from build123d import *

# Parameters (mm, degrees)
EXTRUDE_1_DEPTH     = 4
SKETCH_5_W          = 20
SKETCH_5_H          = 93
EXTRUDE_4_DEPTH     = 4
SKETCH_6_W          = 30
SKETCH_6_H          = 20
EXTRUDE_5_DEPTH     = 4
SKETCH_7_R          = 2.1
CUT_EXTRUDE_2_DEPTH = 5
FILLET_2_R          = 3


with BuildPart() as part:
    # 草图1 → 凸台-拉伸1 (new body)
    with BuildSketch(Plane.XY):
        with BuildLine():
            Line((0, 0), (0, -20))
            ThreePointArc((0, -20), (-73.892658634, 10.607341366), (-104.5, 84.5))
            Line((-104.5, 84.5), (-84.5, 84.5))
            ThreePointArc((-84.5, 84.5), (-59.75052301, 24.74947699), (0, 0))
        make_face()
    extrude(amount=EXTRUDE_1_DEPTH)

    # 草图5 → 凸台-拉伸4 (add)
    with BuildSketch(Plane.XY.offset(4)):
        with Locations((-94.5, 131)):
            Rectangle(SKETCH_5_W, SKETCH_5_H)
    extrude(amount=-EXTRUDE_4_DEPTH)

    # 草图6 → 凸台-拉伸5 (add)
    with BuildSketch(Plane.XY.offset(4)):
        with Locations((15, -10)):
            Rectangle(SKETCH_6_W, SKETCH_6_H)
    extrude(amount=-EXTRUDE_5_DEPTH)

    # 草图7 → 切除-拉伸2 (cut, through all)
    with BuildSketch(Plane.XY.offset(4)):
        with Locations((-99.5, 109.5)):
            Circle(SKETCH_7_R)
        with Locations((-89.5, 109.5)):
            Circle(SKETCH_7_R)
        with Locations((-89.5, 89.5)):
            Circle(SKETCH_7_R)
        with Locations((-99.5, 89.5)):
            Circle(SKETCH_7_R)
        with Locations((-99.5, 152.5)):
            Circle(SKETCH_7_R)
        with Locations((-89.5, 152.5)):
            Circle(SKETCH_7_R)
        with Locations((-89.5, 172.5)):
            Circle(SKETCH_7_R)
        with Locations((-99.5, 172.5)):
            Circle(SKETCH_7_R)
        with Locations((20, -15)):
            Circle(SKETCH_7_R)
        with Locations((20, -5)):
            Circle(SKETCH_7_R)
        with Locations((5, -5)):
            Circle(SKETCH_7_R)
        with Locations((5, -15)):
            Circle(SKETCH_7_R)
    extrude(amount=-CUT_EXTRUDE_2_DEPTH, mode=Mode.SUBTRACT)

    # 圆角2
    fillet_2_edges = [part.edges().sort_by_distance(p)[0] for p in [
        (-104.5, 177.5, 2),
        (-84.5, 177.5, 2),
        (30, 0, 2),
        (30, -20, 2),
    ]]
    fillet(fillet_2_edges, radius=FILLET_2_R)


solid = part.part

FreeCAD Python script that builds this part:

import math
import FreeCAD as App
import Part
import Sketcher

V = App.Vector
Q = App.Units.Quantity


def edges_at(feature, points):
    """Names of the edges that pass closest to the given points."""
    edges = feature.Shape.Edges
    near = lambda p: min(range(len(edges)), key=lambda i: edges[i].distToShape(Part.Vertex(*p))[0])
    return sorted({f"Edge{near(p) + 1}" for p in points})

doc = App.newDocument("Part")
params = doc.addObject("Spreadsheet::Sheet", "Params")
for row, (alias, value) in enumerate([
    ("sketch1_radius", "84.5 mm"),
    ("sketch1_radius2", "104.5 mm"),
    ("pad1_length", "4 mm"),
    ("sketch2_width", "20 mm"),
    ("sketch2_height", "93 mm"),
    ("pad2_length", "4 mm"),
    ("sketch3_width", "30 mm"),
    ("sketch3_height", "20 mm"),
    ("pad3_length", "4 mm"),
    ("sketch4_diameter", "4.2 mm"),
    ("fillet_radius", "3 mm"),
], start=1):
    params.set(f"A{row}", alias)
    params.set(f"B{row}", "=" + value)
    params.setAlias(f"B{row}", alias)

body = doc.addObject("PartDesign::Body", "Body")

# Sketch on XY plane
sketch1 = doc.addObject("Sketcher::SketchObject", "Sketch")
body.addObject(sketch1)
sketch1.AttachmentSupport = (doc.XY_Plane, [""])
sketch1.MapMode = "FlatFace"
sketch1.addGeometry(Part.LineSegment(V(0, -20, 0), V(0, 0, 0)), False)
sketch1.addGeometry(Part.ArcOfCircle(Part.Circle(V(0, 84.5, 0), V(0, 0, 1), 84.5), math.radians(-180), math.radians(-90)), False)
sketch1.addGeometry(Part.LineSegment(V(-84.5, 84.5, 0), V(-104.5, 84.5, 0)), False)
sketch1.addGeometry(Part.ArcOfCircle(Part.Circle(V(0, 84.5, 0), V(0, 0, 1), 104.5), math.radians(180), math.radians(270)), False)
sketch1.addConstraint(Sketcher.Constraint("Coincident", 0, 2, 1, 2))
sketch1.addConstraint(Sketcher.Constraint("Coincident", 1, 1, 2, 1))
sketch1.addConstraint(Sketcher.Constraint("Coincident", 2, 2, 3, 1))
sketch1.addConstraint(Sketcher.Constraint("Coincident", 3, 2, 0, 1))
sketch1.addConstraint(Sketcher.Constraint("Vertical", 0))
sketch1.addConstraint(Sketcher.Constraint("Horizontal", 2))
sketch1.addConstraint(Sketcher.Constraint("Coincident", 0, 2, -1, 1))
sketch1.addConstraint(Sketcher.Constraint("Coincident", 3, 3, 1, 3))
sketch1.addConstraint(Sketcher.Constraint("PointOnObject", 1, 3, -2))
sketch1.addConstraint(Sketcher.Constraint("Horizontal", 3, 3, 1, 1))
sketch1.addConstraint(Sketcher.Constraint("Radius", 1, Q("84.5 mm")))
sketch1.addConstraint(Sketcher.Constraint("Radius", 3, Q("104.5 mm")))
sketch1.setExpression("Constraints[10]", "Params.sketch1_radius")
sketch1.setExpression("Constraints[11]", "Params.sketch1_radius2")
pad1 = doc.addObject("PartDesign::Pad", "Pad")
body.addObject(pad1)
pad1.Profile = sketch1
pad1.setExpression("Length", "Params.pad1_length")

# Sketch on XY plane
sketch2 = doc.addObject("Sketcher::SketchObject", "Sketch001")
body.addObject(sketch2)
sketch2.AttachmentSupport = (doc.XY_Plane, [""])
sketch2.MapMode = "FlatFace"
sketch2.AttachmentOffset = App.Placement(V(0, 0, 4), App.Rotation())
sketch2.addGeometry(Part.LineSegment(V(-104.5, 177.5, 0), V(-104.5, 84.5, 0)), False)
sketch2.addGeometry(Part.LineSegment(V(-104.5, 84.5, 0), V(-84.5, 84.5, 0)), False)
sketch2.addGeometry(Part.LineSegment(V(-84.5, 84.5, 0), V(-84.5, 177.5, 0)), False)
sketch2.addGeometry(Part.LineSegment(V(-84.5, 177.5, 0), V(-104.5, 177.5, 0)), False)
sketch2.addConstraint(Sketcher.Constraint("Coincident", 0, 2, 1, 1))
sketch2.addConstraint(Sketcher.Constraint("Coincident", 1, 2, 2, 1))
sketch2.addConstraint(Sketcher.Constraint("Coincident", 2, 2, 3, 1))
sketch2.addConstraint(Sketcher.Constraint("Coincident", 3, 2, 0, 1))
sketch2.addConstraint(Sketcher.Constraint("Vertical", 0))
sketch2.addConstraint(Sketcher.Constraint("Horizontal", 1))
sketch2.addConstraint(Sketcher.Constraint("Vertical", 2))
sketch2.addConstraint(Sketcher.Constraint("Horizontal", 3))
sketch2.addConstraint(Sketcher.Constraint("DistanceX", 1, 1, 1, 2, Q("20 mm")))
sketch2.addConstraint(Sketcher.Constraint("DistanceY", 0, 2, 0, 1, Q("93 mm")))
sketch2.addConstraint(Sketcher.Constraint("DistanceX", 0, 2, -1, 1, Q("104.5 mm")))
sketch2.addConstraint(Sketcher.Constraint("DistanceY", -1, 1, 0, 2, Q("84.5 mm")))
sketch2.setExpression("Constraints[8]", "Params.sketch2_width")
sketch2.setExpression("Constraints[9]", "Params.sketch2_height")
pad2 = doc.addObject("PartDesign::Pad", "Pad001")
body.addObject(pad2)
pad2.Profile = sketch2
pad2.setExpression("Length", "Params.pad2_length")
pad2.Reversed = True

# Sketch on XY plane
sketch3 = doc.addObject("Sketcher::SketchObject", "Sketch002")
body.addObject(sketch3)
sketch3.AttachmentSupport = (doc.XY_Plane, [""])
sketch3.MapMode = "FlatFace"
sketch3.AttachmentOffset = App.Placement(V(0, 0, 4), App.Rotation())
sketch3.addGeometry(Part.LineSegment(V(0, 0, 0), V(0, -20, 0)), False)
sketch3.addGeometry(Part.LineSegment(V(0, -20, 0), V(30, -20, 0)), False)
sketch3.addGeometry(Part.LineSegment(V(30, -20, 0), V(30, 0, 0)), False)
sketch3.addGeometry(Part.LineSegment(V(30, 0, 0), V(0, 0, 0)), False)
sketch3.addConstraint(Sketcher.Constraint("Coincident", 0, 2, 1, 1))
sketch3.addConstraint(Sketcher.Constraint("Coincident", 1, 2, 2, 1))
sketch3.addConstraint(Sketcher.Constraint("Coincident", 2, 2, 3, 1))
sketch3.addConstraint(Sketcher.Constraint("Coincident", 3, 2, 0, 1))
sketch3.addConstraint(Sketcher.Constraint("Vertical", 0))
sketch3.addConstraint(Sketcher.Constraint("Horizontal", 1))
sketch3.addConstraint(Sketcher.Constraint("Vertical", 2))
sketch3.addConstraint(Sketcher.Constraint("Horizontal", 3))
sketch3.addConstraint(Sketcher.Constraint("Coincident", 3, 2, -1, 1))
sketch3.addConstraint(Sketcher.Constraint("DistanceX", 1, 1, 1, 2, Q("30 mm")))
sketch3.addConstraint(Sketcher.Constraint("DistanceY", 0, 2, 0, 1, Q("20 mm")))
sketch3.setExpression("Constraints[9]", "Params.sketch3_width")
sketch3.setExpression("Constraints[10]", "Params.sketch3_height")
pad3 = doc.addObject("PartDesign::Pad", "Pad002")
body.addObject(pad3)
pad3.Profile = sketch3
pad3.setExpression("Length", "Params.pad3_length")
pad3.Reversed = True

# Sketch on XY plane
sketch4 = doc.addObject("Sketcher::SketchObject", "Sketch003")
body.addObject(sketch4)
sketch4.AttachmentSupport = (doc.XY_Plane, [""])
sketch4.MapMode = "FlatFace"
sketch4.AttachmentOffset = App.Placement(V(0, 0, 4), App.Rotation())
sketch4.addGeometry(Part.Circle(V(-99.5, 109.5, 0), V(0, 0, 1), 2.1), False)
sketch4.addGeometry(Part.Circle(V(-89.5, 109.5, 0), V(0, 0, 1), 2.1), False)
sketch4.addGeometry(Part.Circle(V(-89.5, 89.5, 0), V(0, 0, 1), 2.1), False)
sketch4.addGeometry(Part.Circle(V(-99.5, 89.5, 0), V(0, 0, 1), 2.1), False)
sketch4.addGeometry(Part.Circle(V(-99.5, 152.5, 0), V(0, 0, 1), 2.1), False)
sketch4.addGeometry(Part.Circle(V(-89.5, 152.5, 0), V(0, 0, 1), 2.1), False)
sketch4.addGeometry(Part.Circle(V(-89.5, 172.5, 0), V(0, 0, 1), 2.1), False)
sketch4.addGeometry(Part.Circle(V(-99.5, 172.5, 0), V(0, 0, 1), 2.1), False)
sketch4.addGeometry(Part.Circle(V(20, -15, 0), V(0, 0, 1), 2.1), False)
sketch4.addGeometry(Part.Circle(V(20, -5, 0), V(0, 0, 1), 2.1), False)
sketch4.addGeometry(Part.Circle(V(5, -5, 0), V(0, 0, 1), 2.1), False)
sketch4.addGeometry(Part.Circle(V(5, -15, 0), V(0, 0, 1), 2.1), False)
sketch4.addConstraint(Sketcher.Constraint("Equal", 0, 1))
sketch4.addConstraint(Sketcher.Constraint("Equal", 1, 2))
sketch4.addConstraint(Sketcher.Constraint("Equal", 2, 3))
sketch4.addConstraint(Sketcher.Constraint("Equal", 3, 4))
sketch4.addConstraint(Sketcher.Constraint("Equal", 4, 5))
sketch4.addConstraint(Sketcher.Constraint("Equal", 5, 6))
sketch4.addConstraint(Sketcher.Constraint("Equal", 6, 7))
sketch4.addConstraint(Sketcher.Constraint("Equal", 7, 8))
sketch4.addConstraint(Sketcher.Constraint("Equal", 8, 9))
sketch4.addConstraint(Sketcher.Constraint("Equal", 9, 10))
sketch4.addConstraint(Sketcher.Constraint("Equal", 10, 11))
sketch4.addConstraint(Sketcher.Constraint("Horizontal", 0, 3, 1, 3))
sketch4.addConstraint(Sketcher.Constraint("Horizontal", 2, 3, 3, 3))
sketch4.addConstraint(Sketcher.Constraint("Horizontal", 4, 3, 5, 3))
sketch4.addConstraint(Sketcher.Constraint("Horizontal", 6, 3, 7, 3))
sketch4.addConstraint(Sketcher.Constraint("Horizontal", 9, 3, 10, 3))
sketch4.addConstraint(Sketcher.Constraint("Horizontal", 8, 3, 11, 3))
sketch4.addConstraint(Sketcher.Constraint("Vertical", 1, 3, 2, 3))
sketch4.addConstraint(Sketcher.Constraint("Vertical", 0, 3, 3, 3))
sketch4.addConstraint(Sketcher.Constraint("Vertical", 3, 3, 4, 3))
sketch4.addConstraint(Sketcher.Constraint("Vertical", 2, 3, 5, 3))
sketch4.addConstraint(Sketcher.Constraint("Vertical", 5, 3, 6, 3))
sketch4.addConstraint(Sketcher.Constraint("Vertical", 4, 3, 7, 3))
sketch4.addConstraint(Sketcher.Constraint("Vertical", 8, 3, 9, 3))
sketch4.addConstraint(Sketcher.Constraint("Vertical", 10, 3, 11, 3))
sketch4.addConstraint(Sketcher.Constraint("Diameter", 0, Q("4.2 mm")))
sketch4.addConstraint(Sketcher.Constraint("DistanceX", -1, 1, 8, 3, Q("20 mm")))
sketch4.addConstraint(Sketcher.Constraint("DistanceY", 8, 3, -1, 1, Q("15 mm")))
sketch4.addConstraint(Sketcher.Constraint("DistanceY", 9, 3, -1, 1, Q("5 mm")))
sketch4.addConstraint(Sketcher.Constraint("DistanceX", -1, 1, 10, 3, Q("5 mm")))
sketch4.addConstraint(Sketcher.Constraint("DistanceX", 0, 3, 1, 3, Q("10 mm")))
sketch4.addConstraint(Sketcher.Constraint("DistanceY", 2, 3, 1, 3, Q("20 mm")))
sketch4.addConstraint(Sketcher.Constraint("DistanceY", 0, 3, 4, 3, Q("43 mm")))
sketch4.addConstraint(Sketcher.Constraint("DistanceY", 5, 3, 6, 3, Q("20 mm")))
sketch4.addConstraint(Sketcher.Constraint("DistanceX", 0, 3, -1, 1, Q("99.5 mm")))
sketch4.addConstraint(Sketcher.Constraint("DistanceY", -1, 1, 0, 3, Q("109.5 mm")))
sketch4.setExpression("Constraints[25]", "Params.sketch4_diameter")
pocket1 = doc.addObject("PartDesign::Pocket", "Pocket")
body.addObject(pocket1)
pocket1.Profile = sketch4
pocket1.Type = "ThroughAll"
doc.recompute()

fillet = doc.addObject("PartDesign::Fillet", "Fillet")
body.addObject(fillet)
fillet.Base = (pocket1, edges_at(pocket1, [
    (-104.5, 177.5, 2),
    (-84.5, 177.5, 2),
    (30, 0, 2),
    (30, -20, 2),
]))
fillet.setExpression("Radius", "Params.fillet_radius")

doc.recompute()
